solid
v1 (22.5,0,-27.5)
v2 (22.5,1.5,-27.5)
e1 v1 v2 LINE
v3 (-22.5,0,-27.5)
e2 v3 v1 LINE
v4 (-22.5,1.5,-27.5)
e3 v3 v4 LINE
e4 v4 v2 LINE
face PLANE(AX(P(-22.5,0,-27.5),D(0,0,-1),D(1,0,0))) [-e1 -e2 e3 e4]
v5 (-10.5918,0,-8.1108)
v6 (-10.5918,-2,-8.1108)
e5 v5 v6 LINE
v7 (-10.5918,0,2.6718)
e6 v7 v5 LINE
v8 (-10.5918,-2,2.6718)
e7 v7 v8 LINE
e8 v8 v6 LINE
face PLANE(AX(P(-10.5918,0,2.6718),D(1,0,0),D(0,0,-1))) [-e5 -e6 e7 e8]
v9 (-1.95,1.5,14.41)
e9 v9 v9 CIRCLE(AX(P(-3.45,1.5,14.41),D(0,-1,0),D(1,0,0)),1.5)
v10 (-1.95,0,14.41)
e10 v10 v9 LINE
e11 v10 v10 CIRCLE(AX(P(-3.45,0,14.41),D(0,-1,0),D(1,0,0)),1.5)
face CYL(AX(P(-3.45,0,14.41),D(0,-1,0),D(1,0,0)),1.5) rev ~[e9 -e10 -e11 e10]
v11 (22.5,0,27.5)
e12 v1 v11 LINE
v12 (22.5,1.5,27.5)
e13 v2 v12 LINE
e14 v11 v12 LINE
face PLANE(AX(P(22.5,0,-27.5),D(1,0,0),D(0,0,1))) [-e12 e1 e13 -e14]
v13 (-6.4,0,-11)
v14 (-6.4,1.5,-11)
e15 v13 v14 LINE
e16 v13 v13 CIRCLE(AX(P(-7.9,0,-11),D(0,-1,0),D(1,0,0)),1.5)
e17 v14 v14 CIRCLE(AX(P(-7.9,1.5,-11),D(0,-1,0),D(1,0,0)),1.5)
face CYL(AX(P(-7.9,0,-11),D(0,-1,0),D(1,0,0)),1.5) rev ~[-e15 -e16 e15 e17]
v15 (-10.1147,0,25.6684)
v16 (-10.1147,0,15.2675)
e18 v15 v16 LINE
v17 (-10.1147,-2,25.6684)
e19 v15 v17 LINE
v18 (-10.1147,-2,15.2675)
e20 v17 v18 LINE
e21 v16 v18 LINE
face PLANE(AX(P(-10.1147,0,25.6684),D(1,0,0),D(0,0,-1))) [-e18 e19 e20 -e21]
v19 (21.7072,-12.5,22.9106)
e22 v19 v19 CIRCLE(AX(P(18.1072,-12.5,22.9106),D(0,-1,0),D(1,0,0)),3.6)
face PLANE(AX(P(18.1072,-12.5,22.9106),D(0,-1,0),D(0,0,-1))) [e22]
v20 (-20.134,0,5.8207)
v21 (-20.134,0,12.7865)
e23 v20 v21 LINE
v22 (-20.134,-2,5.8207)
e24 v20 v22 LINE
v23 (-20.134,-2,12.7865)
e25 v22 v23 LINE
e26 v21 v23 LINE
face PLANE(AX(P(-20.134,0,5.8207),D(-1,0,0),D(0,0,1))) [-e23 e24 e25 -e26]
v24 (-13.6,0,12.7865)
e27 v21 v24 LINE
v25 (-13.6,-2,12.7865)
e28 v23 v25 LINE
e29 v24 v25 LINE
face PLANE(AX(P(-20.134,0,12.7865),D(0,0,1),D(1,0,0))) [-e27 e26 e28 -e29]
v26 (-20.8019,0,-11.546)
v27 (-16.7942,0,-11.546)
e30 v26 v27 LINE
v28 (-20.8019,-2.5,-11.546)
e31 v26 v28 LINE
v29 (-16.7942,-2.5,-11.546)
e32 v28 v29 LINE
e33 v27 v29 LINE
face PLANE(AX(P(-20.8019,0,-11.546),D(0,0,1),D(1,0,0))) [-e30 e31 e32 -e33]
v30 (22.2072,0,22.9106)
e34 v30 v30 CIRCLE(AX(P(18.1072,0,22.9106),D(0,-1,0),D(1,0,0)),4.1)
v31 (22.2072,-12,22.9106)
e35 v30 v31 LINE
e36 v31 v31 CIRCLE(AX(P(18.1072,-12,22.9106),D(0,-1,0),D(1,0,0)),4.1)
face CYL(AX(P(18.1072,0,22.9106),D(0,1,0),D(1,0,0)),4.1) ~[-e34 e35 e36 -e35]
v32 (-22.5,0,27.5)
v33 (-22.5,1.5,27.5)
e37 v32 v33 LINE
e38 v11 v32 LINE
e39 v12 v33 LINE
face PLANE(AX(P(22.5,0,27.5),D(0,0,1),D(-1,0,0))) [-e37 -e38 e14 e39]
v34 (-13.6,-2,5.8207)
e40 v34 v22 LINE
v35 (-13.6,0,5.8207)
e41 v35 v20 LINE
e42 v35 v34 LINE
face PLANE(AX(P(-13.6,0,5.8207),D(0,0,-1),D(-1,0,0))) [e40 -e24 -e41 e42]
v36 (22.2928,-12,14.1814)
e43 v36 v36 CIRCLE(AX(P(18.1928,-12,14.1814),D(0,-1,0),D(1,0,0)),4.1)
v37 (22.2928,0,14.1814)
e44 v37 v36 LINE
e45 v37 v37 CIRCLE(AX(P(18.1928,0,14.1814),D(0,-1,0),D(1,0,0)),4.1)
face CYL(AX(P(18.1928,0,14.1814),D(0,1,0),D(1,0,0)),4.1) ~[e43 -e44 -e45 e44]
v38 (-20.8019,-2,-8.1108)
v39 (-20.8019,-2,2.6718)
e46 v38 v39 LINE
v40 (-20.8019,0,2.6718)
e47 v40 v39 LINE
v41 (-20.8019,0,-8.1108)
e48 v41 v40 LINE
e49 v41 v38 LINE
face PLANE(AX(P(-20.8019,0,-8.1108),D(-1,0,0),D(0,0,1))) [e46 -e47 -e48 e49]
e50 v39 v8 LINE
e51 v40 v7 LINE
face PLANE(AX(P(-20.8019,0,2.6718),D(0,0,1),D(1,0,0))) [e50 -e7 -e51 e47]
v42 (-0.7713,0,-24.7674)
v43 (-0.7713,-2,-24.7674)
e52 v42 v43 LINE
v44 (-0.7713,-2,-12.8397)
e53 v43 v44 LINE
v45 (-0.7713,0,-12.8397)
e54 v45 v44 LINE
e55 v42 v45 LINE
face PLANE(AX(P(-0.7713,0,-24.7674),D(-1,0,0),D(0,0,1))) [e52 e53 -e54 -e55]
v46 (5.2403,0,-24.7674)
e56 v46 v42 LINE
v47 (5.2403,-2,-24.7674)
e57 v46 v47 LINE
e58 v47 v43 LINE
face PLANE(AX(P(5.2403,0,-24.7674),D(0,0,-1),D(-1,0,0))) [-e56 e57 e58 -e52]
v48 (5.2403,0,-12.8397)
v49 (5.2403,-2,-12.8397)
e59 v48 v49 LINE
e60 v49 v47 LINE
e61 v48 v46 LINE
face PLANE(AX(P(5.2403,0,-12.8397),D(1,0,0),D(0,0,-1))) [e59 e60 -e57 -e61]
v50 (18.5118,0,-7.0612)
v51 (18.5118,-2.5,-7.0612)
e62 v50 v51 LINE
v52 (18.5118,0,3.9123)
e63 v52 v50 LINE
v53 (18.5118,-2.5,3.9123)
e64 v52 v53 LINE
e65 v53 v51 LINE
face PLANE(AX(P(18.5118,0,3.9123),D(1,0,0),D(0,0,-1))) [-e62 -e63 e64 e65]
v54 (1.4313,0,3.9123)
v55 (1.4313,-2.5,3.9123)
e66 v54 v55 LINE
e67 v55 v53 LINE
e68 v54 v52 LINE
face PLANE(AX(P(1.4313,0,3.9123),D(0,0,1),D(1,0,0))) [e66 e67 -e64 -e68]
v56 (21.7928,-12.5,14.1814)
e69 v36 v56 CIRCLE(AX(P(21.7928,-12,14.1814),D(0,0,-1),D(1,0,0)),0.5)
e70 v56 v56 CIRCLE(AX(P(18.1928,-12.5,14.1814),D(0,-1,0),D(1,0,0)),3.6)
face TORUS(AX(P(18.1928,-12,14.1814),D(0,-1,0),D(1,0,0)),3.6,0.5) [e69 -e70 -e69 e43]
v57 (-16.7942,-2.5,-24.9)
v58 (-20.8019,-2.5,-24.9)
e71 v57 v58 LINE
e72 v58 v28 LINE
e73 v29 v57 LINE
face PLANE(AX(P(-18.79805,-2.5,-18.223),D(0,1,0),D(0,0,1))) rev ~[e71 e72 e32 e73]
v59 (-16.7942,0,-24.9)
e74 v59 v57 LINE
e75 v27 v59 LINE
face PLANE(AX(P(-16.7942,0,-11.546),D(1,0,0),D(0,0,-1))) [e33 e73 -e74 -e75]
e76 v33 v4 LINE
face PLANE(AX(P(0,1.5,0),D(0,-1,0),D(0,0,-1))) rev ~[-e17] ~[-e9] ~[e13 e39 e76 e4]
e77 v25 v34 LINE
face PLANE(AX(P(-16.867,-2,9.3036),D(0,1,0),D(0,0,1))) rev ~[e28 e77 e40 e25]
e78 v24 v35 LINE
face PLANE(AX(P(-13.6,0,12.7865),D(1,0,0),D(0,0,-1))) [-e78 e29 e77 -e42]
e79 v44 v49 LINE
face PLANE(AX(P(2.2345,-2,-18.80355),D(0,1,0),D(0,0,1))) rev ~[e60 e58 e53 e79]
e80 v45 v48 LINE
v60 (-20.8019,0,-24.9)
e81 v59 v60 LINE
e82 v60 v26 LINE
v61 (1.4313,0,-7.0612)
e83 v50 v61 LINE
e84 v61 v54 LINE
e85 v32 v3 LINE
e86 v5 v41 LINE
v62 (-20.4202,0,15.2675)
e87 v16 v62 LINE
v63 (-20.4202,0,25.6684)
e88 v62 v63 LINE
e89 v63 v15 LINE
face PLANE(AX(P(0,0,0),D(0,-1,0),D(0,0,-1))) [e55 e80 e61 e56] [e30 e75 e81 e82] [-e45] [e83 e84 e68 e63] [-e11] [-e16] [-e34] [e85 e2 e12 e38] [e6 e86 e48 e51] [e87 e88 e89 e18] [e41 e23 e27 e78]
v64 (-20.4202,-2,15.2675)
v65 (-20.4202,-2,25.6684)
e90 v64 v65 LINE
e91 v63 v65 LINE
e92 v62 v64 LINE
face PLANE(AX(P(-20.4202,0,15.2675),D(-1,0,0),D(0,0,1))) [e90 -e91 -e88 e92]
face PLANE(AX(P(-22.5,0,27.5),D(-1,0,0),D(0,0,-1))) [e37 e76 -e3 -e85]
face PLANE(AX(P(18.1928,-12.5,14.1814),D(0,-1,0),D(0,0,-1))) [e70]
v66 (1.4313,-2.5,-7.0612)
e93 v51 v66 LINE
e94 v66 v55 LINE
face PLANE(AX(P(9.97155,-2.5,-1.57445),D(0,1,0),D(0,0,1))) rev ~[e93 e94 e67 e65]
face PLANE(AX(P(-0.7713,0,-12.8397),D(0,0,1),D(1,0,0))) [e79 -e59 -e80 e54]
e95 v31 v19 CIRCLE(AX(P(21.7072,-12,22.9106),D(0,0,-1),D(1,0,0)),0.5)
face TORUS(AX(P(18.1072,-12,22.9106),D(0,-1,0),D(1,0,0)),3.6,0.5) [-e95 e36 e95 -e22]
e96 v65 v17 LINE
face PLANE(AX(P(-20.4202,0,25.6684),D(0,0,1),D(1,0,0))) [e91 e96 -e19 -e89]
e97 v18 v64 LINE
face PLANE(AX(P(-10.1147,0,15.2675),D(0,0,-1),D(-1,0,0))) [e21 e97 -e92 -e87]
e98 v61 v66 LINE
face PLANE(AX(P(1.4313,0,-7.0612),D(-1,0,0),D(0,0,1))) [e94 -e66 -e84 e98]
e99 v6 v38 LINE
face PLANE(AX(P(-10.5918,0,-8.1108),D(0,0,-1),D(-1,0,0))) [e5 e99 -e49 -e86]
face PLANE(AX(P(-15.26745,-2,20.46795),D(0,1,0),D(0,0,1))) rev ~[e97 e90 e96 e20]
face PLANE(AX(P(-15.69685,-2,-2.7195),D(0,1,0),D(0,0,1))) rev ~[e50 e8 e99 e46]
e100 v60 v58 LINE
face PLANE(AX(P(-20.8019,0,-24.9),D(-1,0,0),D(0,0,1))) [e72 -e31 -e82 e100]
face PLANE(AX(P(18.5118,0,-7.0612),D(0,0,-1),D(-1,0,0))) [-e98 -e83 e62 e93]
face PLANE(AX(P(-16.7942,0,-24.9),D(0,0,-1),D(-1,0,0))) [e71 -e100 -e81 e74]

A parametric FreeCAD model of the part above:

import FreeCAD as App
import Part
import Sketcher


def edges_at(feature, points):
    """Names of the edges that pass closest to the given points."""
    edges = feature.Shape.Edges
    near = lambda p: min(range(len(edges)), key=lambda i: edges[i].distToShape(Part.Vertex(*p))[0])
    return sorted({f"Edge{near(p) + 1}" for p in points})


def add_polygon(sketch, points):
    """Adds a closed chain of lines whose ends are joined by coincident constraints."""
    first, n = sketch.GeometryCount, len(points)
    for a, b in zip(points, points[1:] + points[:1]):
        sketch.addGeometry(Part.LineSegment(App.Vector(*a, 0), App.Vector(*b, 0)), False)
    for i in range(n):
        sketch.addConstraint(Sketcher.Constraint("Coincident", first + i, 2, first + (i + 1) % n, 1))

doc = App.newDocument("Part")
body = doc.addObject("PartDesign::Body", "Body")

sketch1 = body.newObject("Sketcher::SketchObject", "Sketch")
sketch1.AttachmentSupport = (doc.getObject("XZ_Plane"), [""])
sketch1.MapMode = "FlatFace"
add_polygon(sketch1, [(-22, -28), (22, -28), (22, 28), (-22, 28)])
sketch1.addConstraint(Sketcher.Constraint("Horizontal", 0))
sketch1.addConstraint(Sketcher.Constraint("Vertical", 1))
sketch1.addConstraint(Sketcher.Constraint("Horizontal", 2))
sketch1.addConstraint(Sketcher.Constraint("Vertical", 3))
sketch1.addConstraint(Sketcher.Constraint("Symmetric", 0, 2, 2, 2, -1, 1))
sketch1.addConstraint(Sketcher.Constraint("DistanceX", 0, 1, 0, 2, 45.0))
sketch1.addConstraint(Sketcher.Constraint("DistanceY", 1, 1, 1, 2, 55.0))
pad1 = body.newObject("PartDesign::Pad", "Pad")
pad1.Profile = sketch1
pad1.Length = 1.5
pad1.Reversed = True

sketch2 = body.newObject("Sketcher::SketchObject", "Sketch001")
sketch2.AttachmentSupport = (doc.getObject("XZ_Plane"), [""])
sketch2.MapMode = "FlatFace"
sketch2.addGeometry(Part.Circle(App.Vector(-3.5, 14.4, 0), App.Vector(0, 0, 1), 1.5), False)
sketch2.addGeometry(Part.Circle(App.Vector(-7.9, -11, 0), App.Vector(0, 0, 1), 1.5), False)
sketch2.addConstraint(Sketcher.Constraint("Equal", 0, 1))
sketch2.addConstraint(Sketcher.Constraint("Diameter", 0, 3.0))
sketch2.addConstraint(Sketcher.Constraint("DistanceY", 1, 3, -1, 1, 11.0))
sketch2.addConstraint(Sketcher.Constraint("DistanceX", 1, 3, -1, 1, 7.9))
sketch2.addConstraint(Sketcher.Constraint("DistanceX", 0, 3, -1, 1, 3.45))
sketch2.addConstraint(Sketcher.Constraint("DistanceY", -1, 1, 0, 3, 14.41))
pocket1 = body.newObject("PartDesign::Pocket", "Pocket")
pocket1.Profile = sketch2
pocket1.Length = 1.7648

sketch3 = body.newObject("Sketcher::SketchObject", "Sketch002")
sketch3.AttachmentSupport = (doc.getObject("XZ_Plane"), [""])
sketch3.MapMode = "FlatFace"
add_polygon(sketch3, [(-20, 15), (-10, 15), (-10, 26), (-20, 26)])
add_polygon(sketch3, [(-20, 6), (-14, 6), (-14, 13), (-20, 13)])
add_polygon(sketch3, [(-11, 3), (-21, 3), (-21, -8), (-11, -8)])
sketch3.addConstraint(Sketcher.Constraint("Horizontal", 0))
sketch3.addConstraint(Sketcher.Constraint("Vertical", 1))
sketch3.addConstraint(Sketcher.Constraint("Horizontal", 2))
sketch3.addConstraint(Sketcher.Constraint("Vertical", 3))
sketch3.addConstraint(Sketcher.Constraint("Horizontal", 4))
sketch3.addConstraint(Sketcher.Constraint("Vertical", 5))
sketch3.addConstraint(Sketcher.Constraint("Horizontal", 6))
sketch3.addConstraint(Sketcher.Constraint("Vertical", 7))
sketch3.addConstraint(Sketcher.Constraint("Horizontal", 8))
sketch3.addConstraint(Sketcher.Constraint("Vertical", 9))
sketch3.addConstraint(Sketcher.Constraint("Horizontal", 10))
sketch3.addConstraint(Sketcher.Constraint("Vertical", 11))
sketch3.addConstraint(Sketcher.Constraint("DistanceX", 8, 2, 8, 1, 10.21))
sketch3.addConstraint(Sketcher.Constraint("DistanceX", 4, 2, -1, 1, 13.6))
sketch3.addConstraint(Sketcher.Constraint("DistanceX", 4, 1, 4, 2, 6.534))
sketch3.addConstraint(Sketcher.Constraint("DistanceY", 1, 1, 1, 2, 10.401))
sketch3.addConstraint(Sketcher.Constraint("DistanceX", 0, 1, 0, 2, 10.3055))
sketch3.addConstraint(Sketcher.Constraint("DistanceY", 5, 1, 5, 2, 6.9658))
sketch3.addConstraint(Sketcher.Constraint("DistanceY", 9, 2, 9, 1, 10.7826))
sketch3.addConstraint(Sketcher.Constraint("DistanceX", 8, 2, -1, 1, 20.802))
sketch3.addConstraint(Sketcher.Constraint("DistanceY", 5, 2, 0, 2, 2.481))
sketch3.addConstraint(Sketcher.Constraint("DistanceY", 8, 2, 7, 2, 3.149))
sketch3.addConstraint(Sketcher.Constraint("DistanceX", 0, 2, -1, 1, 10.1147))
sketch3.addConstraint(Sketcher.Constraint("DistanceY", -1, 1, 0, 2, 15.2675))
pad2 = body.newObject("PartDesign::Pad", "Pad001")
pad2.Profile = sketch3
pad2.Length = 2

sketch4 = body.newObject("Sketcher::SketchObject", "Sketch003")
sketch4.AttachmentSupport = (doc.getObject("XZ_Plane"), [""])
sketch4.MapMode = "FlatFace"
add_polygon(sketch4, [(-20.8, -24.9), (-16.8, -24.9), (-16.8, -11.5), (-20.8, -11.5)])
sketch4.addConstraint(Sketcher.Constraint("Horizontal", 0))
sketch4.addConstraint(Sketcher.Constraint("Vertical", 1))
sketch4.addConstraint(Sketcher.Constraint("Horizontal", 2))
sketch4.addConstraint(Sketcher.Constraint("Vertical", 3))
sketch4.addConstraint(Sketcher.Constraint("DistanceY", 0, 2, -1, 1, 24.9))
sketch4.addConstraint(Sketcher.Constraint("DistanceY", 1, 1, 1, 2, 13.354))
sketch4.addConstraint(Sketcher.Constraint("DistanceX", 0, 1, 0, 2, 4.0077))
sketch4.addConstraint(Sketcher.Constraint("DistanceX", 2, 2, -1, 1, 20.802))
pad3 = body.newObject("PartDesign::Pad", "Pad002")
pad3.Profile = sketch4
pad3.Length = 2.5

sketch5 = body.newObject("Sketcher::SketchObject", "Sketch004")
sketch5.AttachmentSupport = (doc.getObject("XZ_Plane"), [""])
sketch5.MapMode = "FlatFace"
add_polygon(sketch5, [(-1, -13), (-1, -25), (5, -25), (5, -13)])
sketch5.addConstraint(Sketcher.Constraint("Vertical", 0))
sketch5.addConstraint(Sketcher.Constraint("Horizontal", 1))
sketch5.addConstraint(Sketcher.Constraint("Vertical", 2))
sketch5.addConstraint(Sketcher.Constraint("Horizontal", 3))
sketch5.addConstraint(Sketcher.Constraint("DistanceX", 1, 1, 1, 2, 6.0116))
sketch5.addConstraint(Sketcher.Constraint("DistanceY", 0, 2, 0, 1, 11.9277))
sketch5.addConstraint(Sketcher.Constraint("DistanceX", 0, 2, -1, 1, 0.7713))
sketch5.addConstraint(Sketcher.Constraint("DistanceY", 0, 2, -1, 1, 24.7674))
pad4 = body.newObject("PartDesign::Pad", "Pad003")
pad4.Profile = sketch5
pad4.Length = 2

sketch6 = body.newObject("Sketcher::SketchObject", "Sketch005")
sketch6.AttachmentSupport = (doc.getObject("XZ_Plane"), [""])
sketch6.MapMode = "FlatFace"
add_polygon(sketch6, [(1, -7), (19, -7), (19, 4), (1, 4)])
sketch6.addConstraint(Sketcher.Constraint("Horizontal", 0))
sketch6.addConstraint(Sketcher.Constraint("Vertical", 1))
sketch6.addConstraint(Sketcher.Constraint("Horizontal", 2))
sketch6.addConstraint(Sketcher.Constraint("Vertical", 3))
sketch6.addConstraint(Sketcher.Constraint("DistanceX", 0, 1, 0, 2, 17.0805))
sketch6.addConstraint(Sketcher.Constraint("DistanceY", 1, 1, 1, 2, 10.9735))
sketch6.addConstraint(Sketcher.Constraint("DistanceX", -1, 1, 0, 2, 18.5118))
sketch6.addConstraint(Sketcher.Constraint("DistanceY", 0, 2, -1, 1, 7.0612))
pad5 = body.newObject("PartDesign::Pad", "Pad004")
pad5.Profile = sketch6
pad5.Length = 2.5

sketch7 = body.newObject("Sketcher::SketchObject", "Sketch006")
sketch7.AttachmentSupport = (doc.getObject("XZ_Plane"), [""])
sketch7.MapMode = "FlatFace"
sketch7.addGeometry(Part.Circle(App.Vector(18.1, 22.9, 0), App.Vector(0, 0, 1), 4.1), False)
sketch7.addConstraint(Sketcher.Constraint("Diameter", 0, 8.2))
sketch7.addConstraint(Sketcher.Constraint("DistanceX", -1, 1, 0, 3, 18.1072))
sketch7.addConstraint(Sketcher.Constraint("DistanceY", -1, 1, 0, 3, 22.9106))
pad6 = body.newObject("PartDesign::Pad", "Pad005")
pad6.Profile = sketch7
pad6.Length = 12.5

sketch8 = body.newObject("Sketcher::SketchObject", "Sketch007")
sketch8.AttachmentSupport = (doc.getObject("XZ_Plane"), [""])
sketch8.MapMode = "FlatFace"
sketch8.addGeometry(Part.Circle(App.Vector(18.2, 14.2, 0), App.Vector(0, 0, 1), 4.1), False)
sketch8.addConstraint(Sketcher.Constraint("Diameter", 0, 8.2))
sketch8.addConstraint(Sketcher.Constraint("DistanceX", -1, 1, 0, 3, 18.1928))
sketch8.addConstraint(Sketcher.Constraint("DistanceY", -1, 1, 0, 3, 14.1814))
pad7 = body.newObject("PartDesign::Pad", "Pad006")
pad7.Profile = sketch8
pad7.Length = 12.5
doc.recompute()

fillet = body.newObject("PartDesign::Fillet", "Fillet")
fillet.Base = (pad7, edges_at(pad7, [(14.093, -12.5, 14.181), (14.007, -12.5, 22.911)]))
fillet.Radius = 0.5

doc.recompute()
